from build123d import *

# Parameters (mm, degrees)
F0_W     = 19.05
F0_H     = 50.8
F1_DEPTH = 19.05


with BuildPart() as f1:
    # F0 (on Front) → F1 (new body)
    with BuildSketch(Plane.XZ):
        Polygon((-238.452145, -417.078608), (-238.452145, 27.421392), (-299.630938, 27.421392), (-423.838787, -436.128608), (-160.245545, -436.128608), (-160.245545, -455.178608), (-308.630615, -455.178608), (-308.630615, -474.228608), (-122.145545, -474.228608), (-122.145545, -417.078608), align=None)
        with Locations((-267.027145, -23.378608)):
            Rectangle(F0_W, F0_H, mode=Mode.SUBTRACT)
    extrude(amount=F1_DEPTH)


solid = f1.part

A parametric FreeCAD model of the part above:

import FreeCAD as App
import Part
import Sketcher
Q = App.Units.Quantity


def add_polygon(sketch, points):
    """Adds a closed chain of lines whose ends are joined by coincident constraints."""
    first, n = sketch.GeometryCount, len(points)
    for a, b in zip(points, points[1:] + points[:1]):
        sketch.addGeometry(Part.LineSegment(App.Vector(*a, 0), App.Vector(*b, 0)), False)
    for i in range(n):
        sketch.addConstraint(Sketcher.Constraint("Coincident", first + i, 2, first + (i + 1) % n, 1))

doc = App.newDocument("Part")
params = doc.addObject("Spreadsheet::Sheet", "Params")
for row, (alias, value) in enumerate([
    ("sketch1_height", "2 in"),
    ("sketch1_height2", "17.5 in"),
    ("sketch1_width", "0.75 in"),
    ("sketch1_width2", "4.579 in"),
    ("pad1_length", "0.75 in"),
], start=1):
    params.set(f"A{row}", alias)
    params.set(f"B{row}", "=" + value)
    params.setAlias(f"B{row}", alias)

body = doc.addObject("PartDesign::Body", "Body")

sketch1 = body.newObject("Sketcher::SketchObject", "Sketch")
sketch1.AttachmentSupport = (doc.getObject("XZ_Plane"), [""])
sketch1.MapMode = "FlatFace"
add_polygon(sketch1, [(-238, -417), (-238, 27), (-300, 27), (-424, -436), (-160, -436), (-160, -455), (-309, -455), (-309, -474), (-122, -474), (-122, -417)])
add_polygon(sketch1, [(-258, -49), (-277, -49), (-277, 2), (-258, 2)])
sketch1.addConstraint([
    Sketcher.Constraint("Vertical", 0),
    Sketcher.Constraint("Horizontal", 1),
    Sketcher.Constraint("Horizontal", 3),
    Sketcher.Constraint("Vertical", 4),
    Sketcher.Constraint("Horizontal", 5),
    Sketcher.Constraint("Vertical", 6),
    Sketcher.Constraint("Horizontal", 7),
    Sketcher.Constraint("Vertical", 8),
    Sketcher.Constraint("Horizontal", 9),
    Sketcher.Constraint("Horizontal", 10),
    Sketcher.Constraint("Vertical", 11),
    Sketcher.Constraint("Horizontal", 12),
    Sketcher.Constraint("Vertical", 13),
    Sketcher.Constraint("Equal", 12, 4),
    Sketcher.Constraint("Equal", 4, 6),
    Sketcher.Constraint("DistanceY", 11, 1, 11, 2, Q("2 in")),
    Sketcher.Constraint("DistanceY", 0, 1, 0, 2, Q("17.5 in")),
    Sketcher.Constraint("Angle", 2, Q("-105 deg")),
    Sketcher.Constraint("DistanceY", 4, 2, 0, 2, Q("19 in")),
    Sketcher.Constraint("DistanceY", 10, 2, 1, 2, Q("3 in")),
    Sketcher.Constraint("DistanceX", 10, 2, 10, 1, Q("0.75 in")),
    Sketcher.Constraint("DistanceX", 4, 2, 7, 2, Q("1.5 in")),
    Sketcher.Constraint("DistanceX", 10, 2, 0, 2, Q("1.5 in")),
    Sketcher.Constraint("DistanceX", 9, 2, 9, 1, Q("4.579 in")),
    Sketcher.Constraint("DistanceX", 5, 2, 5, 1, 148.38507),
    Sketcher.Constraint("DistanceX", 1, 2, 1, 1, 61.178793),
    Sketcher.Constraint("DistanceX", 1, 2, -1, 1, 299.630938),
    Sketcher.Constraint("DistanceY", 2, 2, -1, 1, 436.128608),
])
sketch1.setExpression("Constraints[29]", "Params.sketch1_height")
sketch1.setExpression("Constraints[30]", "Params.sketch1_height2")
sketch1.setExpression("Constraints[34]", "Params.sketch1_width")
sketch1.setExpression("Constraints[37]", "Params.sketch1_width2")
pad1 = body.newObject("PartDesign::Pad", "Pad")
pad1.Profile = sketch1
pad1.setExpression("Length", "Params.pad1_length")

doc.recompute()
